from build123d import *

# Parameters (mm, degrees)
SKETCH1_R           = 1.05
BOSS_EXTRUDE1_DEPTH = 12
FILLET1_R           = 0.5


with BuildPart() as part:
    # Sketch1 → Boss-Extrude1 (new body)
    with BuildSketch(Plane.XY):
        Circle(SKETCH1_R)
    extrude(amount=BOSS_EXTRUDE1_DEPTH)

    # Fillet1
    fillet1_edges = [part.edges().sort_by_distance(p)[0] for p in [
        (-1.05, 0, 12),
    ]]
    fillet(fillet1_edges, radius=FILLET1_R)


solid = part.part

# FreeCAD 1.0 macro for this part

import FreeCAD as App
import Part
import Sketcher

V = App.Vector
Q = App.Units.Quantity


def edges_at(feature, points):
    """Names of the edges that pass closest to the given points."""
    edges = feature.Shape.Edges
    near = lambda p: min(range(len(edges)), key=lambda i: edges[i].distToShape(Part.Vertex(*p))[0])
    return sorted({f"Edge{near(p) + 1}" for p in points})

doc = App.newDocument("Part")
body = doc.addObject("PartDesign::Body", "Body")

sketch1 = doc.addObject("Sketcher::SketchObject", "Sketch")
body.addObject(sketch1)
sketch1.AttachmentSupport = (doc.XY_Plane, [""])
sketch1.MapMode = "FlatFace"
sketch1.addGeometry(Part.Circle(V(0, 0, 0), V(0, 0, 1), 1.05), False)
sketch1.addConstraint(Sketcher.Constraint("Coincident", 0, 3, -1, 1))
sketch1.addConstraint(Sketcher.Constraint("Diameter", 0, Q("2.1 mm")))
pad1 = doc.addObject("PartDesign::Pad", "Pad")
body.addObject(pad1)
pad1.Profile = sketch1
pad1.Length = 12
doc.recompute()

fillet = doc.addObject("PartDesign::Fillet", "Fillet")
body.addObject(fillet)
fillet.Base = (pad1, edges_at(pad1, [(-1.05, 0, 12)]))
fillet.Radius = 0.5

doc.recompute()
